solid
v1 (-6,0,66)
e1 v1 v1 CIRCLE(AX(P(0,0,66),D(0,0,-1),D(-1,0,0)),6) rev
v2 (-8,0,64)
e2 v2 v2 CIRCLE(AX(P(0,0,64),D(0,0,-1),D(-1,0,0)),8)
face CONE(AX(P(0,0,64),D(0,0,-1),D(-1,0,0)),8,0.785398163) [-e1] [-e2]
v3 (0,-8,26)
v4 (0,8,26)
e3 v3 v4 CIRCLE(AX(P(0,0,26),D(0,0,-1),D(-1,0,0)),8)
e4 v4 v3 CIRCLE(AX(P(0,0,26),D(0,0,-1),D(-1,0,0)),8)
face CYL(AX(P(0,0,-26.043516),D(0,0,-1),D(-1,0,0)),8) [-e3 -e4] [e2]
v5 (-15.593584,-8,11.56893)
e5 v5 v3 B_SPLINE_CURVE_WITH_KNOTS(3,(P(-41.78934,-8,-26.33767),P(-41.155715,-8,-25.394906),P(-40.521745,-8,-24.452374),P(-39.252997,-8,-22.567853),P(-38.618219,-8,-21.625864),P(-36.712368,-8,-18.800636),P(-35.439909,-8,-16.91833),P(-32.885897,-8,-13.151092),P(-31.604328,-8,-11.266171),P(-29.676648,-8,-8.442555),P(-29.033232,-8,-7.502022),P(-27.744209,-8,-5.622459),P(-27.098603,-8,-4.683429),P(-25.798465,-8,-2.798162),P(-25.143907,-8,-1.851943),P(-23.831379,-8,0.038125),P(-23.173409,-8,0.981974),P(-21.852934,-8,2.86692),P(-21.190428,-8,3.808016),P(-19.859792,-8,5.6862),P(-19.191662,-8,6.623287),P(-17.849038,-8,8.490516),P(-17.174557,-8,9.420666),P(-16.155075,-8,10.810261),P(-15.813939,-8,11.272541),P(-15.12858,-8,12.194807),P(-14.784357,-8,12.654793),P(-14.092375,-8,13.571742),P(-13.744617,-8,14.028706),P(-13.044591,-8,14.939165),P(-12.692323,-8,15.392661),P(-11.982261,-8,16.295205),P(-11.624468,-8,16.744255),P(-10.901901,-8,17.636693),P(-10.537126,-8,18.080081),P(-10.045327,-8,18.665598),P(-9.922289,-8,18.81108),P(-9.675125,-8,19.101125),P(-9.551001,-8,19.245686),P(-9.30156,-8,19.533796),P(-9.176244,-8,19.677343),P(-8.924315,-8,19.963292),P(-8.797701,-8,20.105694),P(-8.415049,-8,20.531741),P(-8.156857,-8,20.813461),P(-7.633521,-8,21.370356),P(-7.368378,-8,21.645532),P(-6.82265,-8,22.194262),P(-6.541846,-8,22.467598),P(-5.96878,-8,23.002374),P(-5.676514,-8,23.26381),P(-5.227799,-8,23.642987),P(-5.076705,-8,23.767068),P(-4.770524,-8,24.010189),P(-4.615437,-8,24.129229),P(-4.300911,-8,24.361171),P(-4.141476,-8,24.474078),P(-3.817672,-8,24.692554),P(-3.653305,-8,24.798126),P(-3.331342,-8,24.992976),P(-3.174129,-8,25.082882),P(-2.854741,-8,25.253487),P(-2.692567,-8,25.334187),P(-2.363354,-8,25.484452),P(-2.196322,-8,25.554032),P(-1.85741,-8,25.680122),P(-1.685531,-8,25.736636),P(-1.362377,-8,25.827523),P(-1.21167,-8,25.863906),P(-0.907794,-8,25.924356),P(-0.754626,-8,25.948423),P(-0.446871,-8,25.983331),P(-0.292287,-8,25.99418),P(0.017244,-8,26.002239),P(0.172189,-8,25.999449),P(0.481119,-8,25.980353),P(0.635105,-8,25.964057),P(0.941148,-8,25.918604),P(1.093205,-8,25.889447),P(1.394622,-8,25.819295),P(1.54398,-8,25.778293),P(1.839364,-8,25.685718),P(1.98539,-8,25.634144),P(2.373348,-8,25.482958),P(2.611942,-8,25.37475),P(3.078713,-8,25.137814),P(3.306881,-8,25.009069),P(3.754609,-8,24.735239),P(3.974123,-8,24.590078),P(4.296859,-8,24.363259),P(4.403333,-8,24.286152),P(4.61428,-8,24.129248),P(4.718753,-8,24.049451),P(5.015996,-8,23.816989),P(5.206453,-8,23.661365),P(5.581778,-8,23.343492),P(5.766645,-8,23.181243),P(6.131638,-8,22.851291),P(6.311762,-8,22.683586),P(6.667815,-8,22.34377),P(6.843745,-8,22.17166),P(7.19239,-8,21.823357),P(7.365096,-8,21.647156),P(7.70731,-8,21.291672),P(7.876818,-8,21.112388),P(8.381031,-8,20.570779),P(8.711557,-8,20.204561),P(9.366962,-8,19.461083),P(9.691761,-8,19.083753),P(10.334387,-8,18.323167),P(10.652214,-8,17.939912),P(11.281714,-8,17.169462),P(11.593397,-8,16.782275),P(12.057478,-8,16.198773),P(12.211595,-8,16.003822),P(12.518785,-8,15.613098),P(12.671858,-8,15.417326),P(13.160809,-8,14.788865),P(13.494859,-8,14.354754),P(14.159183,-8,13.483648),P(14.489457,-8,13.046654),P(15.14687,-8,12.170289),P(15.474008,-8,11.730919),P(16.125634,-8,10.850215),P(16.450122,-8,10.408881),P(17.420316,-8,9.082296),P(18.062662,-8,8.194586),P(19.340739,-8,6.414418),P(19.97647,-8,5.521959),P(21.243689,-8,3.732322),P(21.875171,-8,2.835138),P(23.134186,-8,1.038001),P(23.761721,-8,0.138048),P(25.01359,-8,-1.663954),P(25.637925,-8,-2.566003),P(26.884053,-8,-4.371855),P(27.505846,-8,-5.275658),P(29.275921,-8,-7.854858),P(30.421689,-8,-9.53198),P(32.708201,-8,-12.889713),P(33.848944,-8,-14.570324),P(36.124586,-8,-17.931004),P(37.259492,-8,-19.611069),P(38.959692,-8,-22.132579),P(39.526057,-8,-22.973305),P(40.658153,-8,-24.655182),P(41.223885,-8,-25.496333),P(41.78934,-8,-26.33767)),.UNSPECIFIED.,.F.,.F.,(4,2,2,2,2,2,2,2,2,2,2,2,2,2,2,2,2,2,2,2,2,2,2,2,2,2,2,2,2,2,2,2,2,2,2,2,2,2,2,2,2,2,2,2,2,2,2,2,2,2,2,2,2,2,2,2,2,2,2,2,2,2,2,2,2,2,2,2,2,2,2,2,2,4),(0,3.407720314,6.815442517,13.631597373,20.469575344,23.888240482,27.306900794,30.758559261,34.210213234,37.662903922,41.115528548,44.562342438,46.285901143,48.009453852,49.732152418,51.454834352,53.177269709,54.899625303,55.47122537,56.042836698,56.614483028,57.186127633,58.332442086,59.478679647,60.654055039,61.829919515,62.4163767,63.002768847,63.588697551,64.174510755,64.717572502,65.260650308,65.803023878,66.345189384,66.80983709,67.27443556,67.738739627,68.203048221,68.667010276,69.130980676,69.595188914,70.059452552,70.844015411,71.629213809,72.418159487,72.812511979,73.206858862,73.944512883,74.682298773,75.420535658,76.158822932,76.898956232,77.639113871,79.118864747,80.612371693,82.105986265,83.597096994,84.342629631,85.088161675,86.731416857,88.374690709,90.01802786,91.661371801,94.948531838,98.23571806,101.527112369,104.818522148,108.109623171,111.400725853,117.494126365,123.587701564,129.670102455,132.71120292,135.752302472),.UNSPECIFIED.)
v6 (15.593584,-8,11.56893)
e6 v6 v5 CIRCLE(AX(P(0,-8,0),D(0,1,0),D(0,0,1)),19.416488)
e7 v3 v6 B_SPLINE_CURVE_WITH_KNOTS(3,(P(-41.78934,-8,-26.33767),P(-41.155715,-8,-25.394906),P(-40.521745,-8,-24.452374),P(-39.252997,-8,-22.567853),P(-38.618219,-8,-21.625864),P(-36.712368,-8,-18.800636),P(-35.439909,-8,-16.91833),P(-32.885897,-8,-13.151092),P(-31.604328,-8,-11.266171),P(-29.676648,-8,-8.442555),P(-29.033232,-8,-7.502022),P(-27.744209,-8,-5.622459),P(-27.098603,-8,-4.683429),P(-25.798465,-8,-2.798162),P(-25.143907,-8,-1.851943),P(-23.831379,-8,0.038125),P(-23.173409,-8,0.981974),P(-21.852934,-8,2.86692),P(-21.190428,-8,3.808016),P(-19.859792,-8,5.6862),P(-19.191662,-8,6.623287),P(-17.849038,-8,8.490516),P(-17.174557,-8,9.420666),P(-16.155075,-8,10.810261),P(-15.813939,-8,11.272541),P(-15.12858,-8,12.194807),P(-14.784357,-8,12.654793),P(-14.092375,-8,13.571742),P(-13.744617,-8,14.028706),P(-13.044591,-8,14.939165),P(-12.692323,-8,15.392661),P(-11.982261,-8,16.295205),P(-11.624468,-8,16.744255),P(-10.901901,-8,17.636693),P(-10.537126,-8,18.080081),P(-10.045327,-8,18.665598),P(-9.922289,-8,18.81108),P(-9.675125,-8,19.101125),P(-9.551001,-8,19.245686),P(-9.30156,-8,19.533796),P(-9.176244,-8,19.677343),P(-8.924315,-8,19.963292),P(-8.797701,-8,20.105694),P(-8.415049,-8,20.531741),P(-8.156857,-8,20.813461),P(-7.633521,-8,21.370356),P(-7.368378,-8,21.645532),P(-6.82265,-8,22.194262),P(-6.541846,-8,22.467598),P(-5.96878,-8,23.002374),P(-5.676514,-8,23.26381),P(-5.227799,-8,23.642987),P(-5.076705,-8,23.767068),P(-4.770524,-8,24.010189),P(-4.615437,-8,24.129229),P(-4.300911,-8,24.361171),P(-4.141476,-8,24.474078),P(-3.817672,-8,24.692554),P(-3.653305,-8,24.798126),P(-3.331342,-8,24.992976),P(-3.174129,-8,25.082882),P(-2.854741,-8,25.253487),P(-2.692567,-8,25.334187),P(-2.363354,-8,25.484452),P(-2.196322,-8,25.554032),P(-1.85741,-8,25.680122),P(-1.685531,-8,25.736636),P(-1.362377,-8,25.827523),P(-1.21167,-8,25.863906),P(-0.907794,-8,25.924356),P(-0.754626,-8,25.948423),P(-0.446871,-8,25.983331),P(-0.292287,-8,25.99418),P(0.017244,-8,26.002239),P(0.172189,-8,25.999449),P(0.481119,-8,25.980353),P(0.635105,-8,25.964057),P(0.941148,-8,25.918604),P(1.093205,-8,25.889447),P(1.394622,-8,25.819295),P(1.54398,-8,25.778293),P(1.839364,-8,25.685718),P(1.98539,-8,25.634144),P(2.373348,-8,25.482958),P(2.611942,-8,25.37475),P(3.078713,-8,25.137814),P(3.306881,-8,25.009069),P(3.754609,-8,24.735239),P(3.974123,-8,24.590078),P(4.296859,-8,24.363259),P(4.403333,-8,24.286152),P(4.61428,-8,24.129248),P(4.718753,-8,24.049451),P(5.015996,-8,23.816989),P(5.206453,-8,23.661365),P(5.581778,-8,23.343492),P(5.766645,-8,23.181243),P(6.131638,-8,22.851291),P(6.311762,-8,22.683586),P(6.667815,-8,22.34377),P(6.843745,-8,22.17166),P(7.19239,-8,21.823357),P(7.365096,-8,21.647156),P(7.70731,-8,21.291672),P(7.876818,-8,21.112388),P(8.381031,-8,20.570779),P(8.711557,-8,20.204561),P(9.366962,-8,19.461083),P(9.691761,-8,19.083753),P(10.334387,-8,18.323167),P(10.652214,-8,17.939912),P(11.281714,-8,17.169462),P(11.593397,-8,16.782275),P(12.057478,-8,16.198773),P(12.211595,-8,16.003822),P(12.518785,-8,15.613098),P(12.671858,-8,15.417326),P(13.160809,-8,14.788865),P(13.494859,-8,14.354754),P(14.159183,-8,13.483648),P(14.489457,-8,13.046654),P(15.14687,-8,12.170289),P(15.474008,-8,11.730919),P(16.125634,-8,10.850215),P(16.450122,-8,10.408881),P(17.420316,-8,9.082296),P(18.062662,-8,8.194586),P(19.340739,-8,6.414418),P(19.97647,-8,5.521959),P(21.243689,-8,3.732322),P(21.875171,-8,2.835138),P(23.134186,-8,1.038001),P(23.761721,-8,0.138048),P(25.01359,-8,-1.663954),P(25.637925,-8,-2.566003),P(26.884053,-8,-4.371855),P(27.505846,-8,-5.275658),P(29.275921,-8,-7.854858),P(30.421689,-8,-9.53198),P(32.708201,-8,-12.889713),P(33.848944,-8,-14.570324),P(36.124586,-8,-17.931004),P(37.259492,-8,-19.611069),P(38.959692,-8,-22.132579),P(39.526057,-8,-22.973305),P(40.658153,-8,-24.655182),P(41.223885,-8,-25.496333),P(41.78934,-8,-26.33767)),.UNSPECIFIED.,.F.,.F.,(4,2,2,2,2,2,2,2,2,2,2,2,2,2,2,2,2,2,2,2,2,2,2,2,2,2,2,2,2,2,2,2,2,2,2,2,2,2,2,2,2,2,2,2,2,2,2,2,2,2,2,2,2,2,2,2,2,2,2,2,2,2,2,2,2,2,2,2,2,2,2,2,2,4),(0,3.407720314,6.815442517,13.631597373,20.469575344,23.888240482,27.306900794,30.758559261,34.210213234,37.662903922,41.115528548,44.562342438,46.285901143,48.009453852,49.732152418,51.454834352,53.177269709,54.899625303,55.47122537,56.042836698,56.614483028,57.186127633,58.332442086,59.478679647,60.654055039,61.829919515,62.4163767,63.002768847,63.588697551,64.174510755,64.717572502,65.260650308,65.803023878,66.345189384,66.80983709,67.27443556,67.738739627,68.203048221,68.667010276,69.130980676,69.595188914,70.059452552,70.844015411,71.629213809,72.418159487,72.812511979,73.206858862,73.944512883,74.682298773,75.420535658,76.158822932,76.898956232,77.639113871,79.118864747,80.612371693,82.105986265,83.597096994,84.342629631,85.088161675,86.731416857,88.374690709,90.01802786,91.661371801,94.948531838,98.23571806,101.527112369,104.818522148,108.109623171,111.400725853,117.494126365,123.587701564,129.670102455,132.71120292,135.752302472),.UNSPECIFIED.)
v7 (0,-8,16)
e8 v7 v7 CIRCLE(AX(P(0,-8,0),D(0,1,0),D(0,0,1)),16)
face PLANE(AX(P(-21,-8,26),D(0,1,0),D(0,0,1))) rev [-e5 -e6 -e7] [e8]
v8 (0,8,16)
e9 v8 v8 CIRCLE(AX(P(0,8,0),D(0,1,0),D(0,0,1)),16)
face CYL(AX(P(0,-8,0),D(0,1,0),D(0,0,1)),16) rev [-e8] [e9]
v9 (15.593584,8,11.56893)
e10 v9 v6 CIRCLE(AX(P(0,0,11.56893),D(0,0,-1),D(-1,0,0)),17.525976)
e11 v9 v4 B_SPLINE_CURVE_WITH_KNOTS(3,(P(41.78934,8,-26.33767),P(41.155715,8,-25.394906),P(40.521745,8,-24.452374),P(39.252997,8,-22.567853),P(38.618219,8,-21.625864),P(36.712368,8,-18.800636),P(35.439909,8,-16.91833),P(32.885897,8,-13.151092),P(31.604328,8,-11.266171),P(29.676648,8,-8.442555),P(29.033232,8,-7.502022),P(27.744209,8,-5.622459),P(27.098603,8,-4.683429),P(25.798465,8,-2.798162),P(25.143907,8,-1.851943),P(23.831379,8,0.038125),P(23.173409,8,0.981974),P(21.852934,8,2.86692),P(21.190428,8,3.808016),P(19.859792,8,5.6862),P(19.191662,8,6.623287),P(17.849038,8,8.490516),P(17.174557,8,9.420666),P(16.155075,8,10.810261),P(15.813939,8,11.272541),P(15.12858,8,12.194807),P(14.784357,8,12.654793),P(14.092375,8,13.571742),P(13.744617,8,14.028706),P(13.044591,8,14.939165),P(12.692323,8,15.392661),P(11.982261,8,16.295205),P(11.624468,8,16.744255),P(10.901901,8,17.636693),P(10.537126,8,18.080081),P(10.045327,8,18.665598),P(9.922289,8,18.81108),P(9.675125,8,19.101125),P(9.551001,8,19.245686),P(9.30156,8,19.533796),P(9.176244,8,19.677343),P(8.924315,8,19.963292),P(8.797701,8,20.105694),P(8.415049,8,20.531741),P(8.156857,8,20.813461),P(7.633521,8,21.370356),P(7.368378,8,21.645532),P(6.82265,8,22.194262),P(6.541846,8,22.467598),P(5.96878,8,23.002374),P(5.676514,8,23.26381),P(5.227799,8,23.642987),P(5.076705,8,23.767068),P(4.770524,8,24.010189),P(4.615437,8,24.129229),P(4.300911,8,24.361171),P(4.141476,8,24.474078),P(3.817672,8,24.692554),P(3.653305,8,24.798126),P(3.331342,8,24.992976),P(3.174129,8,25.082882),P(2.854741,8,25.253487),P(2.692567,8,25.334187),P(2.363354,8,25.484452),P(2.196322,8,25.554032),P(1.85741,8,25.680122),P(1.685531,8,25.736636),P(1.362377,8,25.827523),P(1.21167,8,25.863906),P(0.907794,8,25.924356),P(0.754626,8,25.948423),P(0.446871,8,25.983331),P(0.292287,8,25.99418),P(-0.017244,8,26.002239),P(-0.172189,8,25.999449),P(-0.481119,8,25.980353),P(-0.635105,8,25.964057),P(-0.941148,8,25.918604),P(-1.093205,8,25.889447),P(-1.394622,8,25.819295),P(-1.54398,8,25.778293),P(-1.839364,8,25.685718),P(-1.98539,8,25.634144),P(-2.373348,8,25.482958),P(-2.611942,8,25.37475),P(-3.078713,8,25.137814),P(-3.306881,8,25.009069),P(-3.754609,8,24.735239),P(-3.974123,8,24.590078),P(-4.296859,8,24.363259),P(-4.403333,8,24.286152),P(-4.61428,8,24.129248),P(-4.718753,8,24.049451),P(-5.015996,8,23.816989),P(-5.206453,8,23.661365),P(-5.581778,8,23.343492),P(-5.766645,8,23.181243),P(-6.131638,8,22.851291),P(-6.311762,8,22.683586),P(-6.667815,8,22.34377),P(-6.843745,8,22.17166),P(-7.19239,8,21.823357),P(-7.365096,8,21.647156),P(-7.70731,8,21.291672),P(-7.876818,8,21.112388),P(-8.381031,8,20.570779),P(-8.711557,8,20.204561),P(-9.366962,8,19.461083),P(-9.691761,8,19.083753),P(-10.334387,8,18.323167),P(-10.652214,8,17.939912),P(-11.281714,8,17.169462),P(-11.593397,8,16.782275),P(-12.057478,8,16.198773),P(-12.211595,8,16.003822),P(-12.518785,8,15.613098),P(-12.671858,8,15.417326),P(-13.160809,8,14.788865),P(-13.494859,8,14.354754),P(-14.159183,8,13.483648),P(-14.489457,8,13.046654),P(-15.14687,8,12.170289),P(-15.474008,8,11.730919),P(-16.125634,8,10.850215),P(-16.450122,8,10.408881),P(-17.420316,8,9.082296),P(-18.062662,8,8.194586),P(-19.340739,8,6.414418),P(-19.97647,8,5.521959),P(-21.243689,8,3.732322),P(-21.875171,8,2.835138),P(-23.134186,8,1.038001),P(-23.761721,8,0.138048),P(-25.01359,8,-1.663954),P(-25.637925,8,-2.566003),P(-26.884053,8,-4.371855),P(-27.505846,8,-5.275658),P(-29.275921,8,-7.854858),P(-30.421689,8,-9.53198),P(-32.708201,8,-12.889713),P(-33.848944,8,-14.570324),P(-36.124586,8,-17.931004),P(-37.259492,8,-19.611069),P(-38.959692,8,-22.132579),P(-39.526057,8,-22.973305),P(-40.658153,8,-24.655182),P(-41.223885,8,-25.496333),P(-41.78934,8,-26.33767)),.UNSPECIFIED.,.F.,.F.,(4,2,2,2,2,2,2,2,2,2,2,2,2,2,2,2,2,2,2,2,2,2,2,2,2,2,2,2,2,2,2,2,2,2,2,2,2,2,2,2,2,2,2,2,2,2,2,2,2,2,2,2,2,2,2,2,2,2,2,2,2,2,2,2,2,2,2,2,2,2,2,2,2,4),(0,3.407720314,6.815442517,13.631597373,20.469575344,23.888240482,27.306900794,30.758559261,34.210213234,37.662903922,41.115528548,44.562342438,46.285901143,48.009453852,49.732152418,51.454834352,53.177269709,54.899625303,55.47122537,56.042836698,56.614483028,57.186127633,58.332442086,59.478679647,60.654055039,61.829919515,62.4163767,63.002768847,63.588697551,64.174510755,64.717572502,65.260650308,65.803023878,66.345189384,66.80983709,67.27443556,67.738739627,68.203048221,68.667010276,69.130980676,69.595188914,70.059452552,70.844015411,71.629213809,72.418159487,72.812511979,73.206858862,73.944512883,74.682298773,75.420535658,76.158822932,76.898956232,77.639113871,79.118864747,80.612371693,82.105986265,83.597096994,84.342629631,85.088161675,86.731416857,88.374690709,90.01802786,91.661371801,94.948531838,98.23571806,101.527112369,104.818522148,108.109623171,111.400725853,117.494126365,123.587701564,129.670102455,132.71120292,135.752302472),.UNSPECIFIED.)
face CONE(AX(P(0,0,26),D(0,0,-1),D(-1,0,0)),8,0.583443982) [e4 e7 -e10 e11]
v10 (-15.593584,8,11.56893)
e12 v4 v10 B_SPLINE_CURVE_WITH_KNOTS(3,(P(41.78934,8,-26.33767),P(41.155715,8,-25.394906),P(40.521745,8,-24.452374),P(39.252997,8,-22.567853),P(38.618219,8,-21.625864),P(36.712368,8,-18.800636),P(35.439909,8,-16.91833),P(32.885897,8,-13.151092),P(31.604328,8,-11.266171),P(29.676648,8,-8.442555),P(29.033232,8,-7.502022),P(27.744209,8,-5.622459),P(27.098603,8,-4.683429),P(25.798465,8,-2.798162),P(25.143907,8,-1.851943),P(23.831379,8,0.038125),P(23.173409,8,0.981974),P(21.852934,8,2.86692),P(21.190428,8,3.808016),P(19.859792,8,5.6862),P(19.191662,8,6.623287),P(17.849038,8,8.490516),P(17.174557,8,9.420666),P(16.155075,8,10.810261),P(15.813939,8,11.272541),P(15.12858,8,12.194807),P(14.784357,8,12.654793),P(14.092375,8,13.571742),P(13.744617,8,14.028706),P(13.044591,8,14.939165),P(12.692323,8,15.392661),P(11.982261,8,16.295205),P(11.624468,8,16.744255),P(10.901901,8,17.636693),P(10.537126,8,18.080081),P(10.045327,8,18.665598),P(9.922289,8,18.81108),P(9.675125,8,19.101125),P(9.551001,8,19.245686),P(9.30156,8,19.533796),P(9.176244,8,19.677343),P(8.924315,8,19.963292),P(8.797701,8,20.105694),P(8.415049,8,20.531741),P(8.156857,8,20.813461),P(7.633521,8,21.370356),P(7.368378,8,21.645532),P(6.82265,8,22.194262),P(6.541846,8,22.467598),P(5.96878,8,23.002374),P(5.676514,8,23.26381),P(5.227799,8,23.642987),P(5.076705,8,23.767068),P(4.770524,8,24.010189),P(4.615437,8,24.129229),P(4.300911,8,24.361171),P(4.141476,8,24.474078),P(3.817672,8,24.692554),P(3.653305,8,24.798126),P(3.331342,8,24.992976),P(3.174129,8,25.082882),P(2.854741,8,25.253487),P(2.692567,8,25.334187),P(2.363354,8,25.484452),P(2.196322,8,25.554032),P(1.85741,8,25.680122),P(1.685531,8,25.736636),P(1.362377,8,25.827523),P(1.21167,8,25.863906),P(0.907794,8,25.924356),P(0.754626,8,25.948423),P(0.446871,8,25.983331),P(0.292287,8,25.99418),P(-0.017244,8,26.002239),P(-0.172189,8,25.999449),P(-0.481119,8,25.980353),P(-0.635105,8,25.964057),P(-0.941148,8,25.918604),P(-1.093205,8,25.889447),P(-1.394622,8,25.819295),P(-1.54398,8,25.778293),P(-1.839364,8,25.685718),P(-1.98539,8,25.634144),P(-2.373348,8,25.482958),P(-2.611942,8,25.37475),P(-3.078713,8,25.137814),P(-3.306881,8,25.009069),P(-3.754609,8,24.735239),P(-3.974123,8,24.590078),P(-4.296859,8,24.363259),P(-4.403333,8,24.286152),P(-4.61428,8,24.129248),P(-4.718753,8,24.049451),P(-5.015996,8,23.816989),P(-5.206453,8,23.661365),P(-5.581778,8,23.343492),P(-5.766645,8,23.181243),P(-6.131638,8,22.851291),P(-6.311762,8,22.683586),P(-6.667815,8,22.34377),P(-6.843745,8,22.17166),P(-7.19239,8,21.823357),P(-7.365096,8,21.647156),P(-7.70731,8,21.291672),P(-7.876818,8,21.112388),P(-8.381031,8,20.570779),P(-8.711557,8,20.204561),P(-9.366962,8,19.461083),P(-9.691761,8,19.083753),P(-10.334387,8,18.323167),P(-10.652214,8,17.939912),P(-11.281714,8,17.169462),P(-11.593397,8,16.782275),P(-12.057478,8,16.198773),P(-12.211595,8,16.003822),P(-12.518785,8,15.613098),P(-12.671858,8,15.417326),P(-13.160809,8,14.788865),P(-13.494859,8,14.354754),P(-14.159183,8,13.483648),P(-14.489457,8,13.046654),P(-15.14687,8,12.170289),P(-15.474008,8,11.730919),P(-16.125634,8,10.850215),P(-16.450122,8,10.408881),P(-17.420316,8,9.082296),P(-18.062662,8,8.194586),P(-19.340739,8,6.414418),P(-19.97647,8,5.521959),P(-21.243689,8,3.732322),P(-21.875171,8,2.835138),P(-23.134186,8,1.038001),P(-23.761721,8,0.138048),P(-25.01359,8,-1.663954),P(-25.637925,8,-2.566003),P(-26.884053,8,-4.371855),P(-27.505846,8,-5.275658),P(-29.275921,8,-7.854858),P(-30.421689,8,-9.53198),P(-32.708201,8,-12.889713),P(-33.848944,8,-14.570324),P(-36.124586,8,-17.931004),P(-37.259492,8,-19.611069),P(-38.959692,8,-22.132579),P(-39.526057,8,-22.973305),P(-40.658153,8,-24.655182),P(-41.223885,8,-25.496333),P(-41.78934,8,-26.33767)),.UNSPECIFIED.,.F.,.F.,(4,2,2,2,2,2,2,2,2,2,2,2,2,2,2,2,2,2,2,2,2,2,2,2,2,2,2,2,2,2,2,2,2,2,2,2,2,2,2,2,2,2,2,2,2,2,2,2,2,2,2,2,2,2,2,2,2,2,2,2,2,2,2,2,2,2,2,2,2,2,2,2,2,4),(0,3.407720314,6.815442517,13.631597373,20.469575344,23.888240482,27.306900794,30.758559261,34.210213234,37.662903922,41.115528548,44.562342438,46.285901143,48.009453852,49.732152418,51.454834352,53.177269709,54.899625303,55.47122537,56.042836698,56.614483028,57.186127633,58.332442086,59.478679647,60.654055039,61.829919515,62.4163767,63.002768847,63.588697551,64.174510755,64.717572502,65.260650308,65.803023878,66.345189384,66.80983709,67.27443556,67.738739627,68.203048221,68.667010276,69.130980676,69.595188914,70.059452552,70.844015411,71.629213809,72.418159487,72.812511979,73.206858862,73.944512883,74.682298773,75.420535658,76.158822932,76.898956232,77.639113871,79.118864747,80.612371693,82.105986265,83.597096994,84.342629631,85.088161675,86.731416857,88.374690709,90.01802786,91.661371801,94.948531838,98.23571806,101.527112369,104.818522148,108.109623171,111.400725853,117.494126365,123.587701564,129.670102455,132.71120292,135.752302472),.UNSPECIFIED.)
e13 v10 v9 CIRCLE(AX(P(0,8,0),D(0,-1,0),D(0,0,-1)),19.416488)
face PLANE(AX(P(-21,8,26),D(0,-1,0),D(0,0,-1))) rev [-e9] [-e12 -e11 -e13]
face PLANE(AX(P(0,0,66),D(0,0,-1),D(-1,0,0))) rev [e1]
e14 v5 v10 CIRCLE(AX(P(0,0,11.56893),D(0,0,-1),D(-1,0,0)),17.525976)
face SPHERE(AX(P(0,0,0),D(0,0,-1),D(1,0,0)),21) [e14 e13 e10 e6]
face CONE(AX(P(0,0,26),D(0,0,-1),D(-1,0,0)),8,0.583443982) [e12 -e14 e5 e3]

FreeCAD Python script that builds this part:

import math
import FreeCAD as App
import Part
import Sketcher
from FreeCAD import Vector
Q = App.Units.Quantity


def edges_at(feature, points):
    """Names of the edges that pass closest to the given points."""
    edges = feature.Shape.Edges
    near = lambda p: min(range(len(edges)), key=lambda i: edges[i].distToShape(Part.Vertex(*p))[0])
    return sorted({f"Edge{near(p) + 1}" for p in points})

doc = App.newDocument("Part")
body = doc.addObject("PartDesign::Body", "Body")

# Sketch on XZ plane
sketch1 = body.newObject("Sketcher::SketchObject", "Sketch")
sketch1.AttachmentSupport = (doc.getObject("XZ_Plane"), [""])
sketch1.MapMode = "FlatFace"
sketch1.addGeometry([
    Part.LineSegment(Vector(0, -21, 0), Vector(0, 66, 0)),  # 0
    Part.LineSegment(Vector(0, 66, 0), Vector(8, 66, 0)),  # 1
    Part.LineSegment(Vector(8, 66, 0), Vector(8, 26, 0)),  # 2
    Part.LineSegment(Vector(8, 26, 0), Vector(18, 12, 0)),  # 3
    Part.ArcOfCircle(Part.Circle(Vector(0, 0, 0), Vector(0, 0, 1), 21), math.radians(-90), math.radians(33)),  # 4
], False)
sketch1.addConstraint([
    Sketcher.Constraint("Coincident", 0, 2, 1, 1),
    Sketcher.Constraint("Coincident", 1, 2, 2, 1),
    Sketcher.Constraint("Coincident", 2, 2, 3, 1),
    Sketcher.Constraint("Tangent", 3, 2, 4, 2),
    Sketcher.Constraint("Coincident", 4, 1, 0, 1),
    Sketcher.Constraint("Vertical", 0),
    Sketcher.Constraint("Horizontal", 1),
    Sketcher.Constraint("Vertical", 2),
    Sketcher.Constraint("Coincident", 4, 3, -1, 1),
    Sketcher.Constraint("PointOnObject", 0, 2, -2),
    Sketcher.Constraint("Radius", 4, Q("21 mm")),
    Sketcher.Constraint("DistanceX", 1, 1, 1, 2, Q("8 mm")),
    Sketcher.Constraint("DistanceY", 0, 1, 0, 2, Q("87 mm")),
    Sketcher.Constraint("DistanceY", 2, 2, 2, 1, Q("40 mm")),
])
revolution = body.newObject("PartDesign::Revolution", "Revolution")
revolution.Profile = sketch1
revolution.ReferenceAxis = (sketch1, ["V_Axis"])
revolution.Angle = 360

# Sketch on YZ plane
sketch2 = body.newObject("Sketcher::SketchObject", "Sketch001")
sketch2.AttachmentSupport = (doc.getObject("YZ_Plane"), [""])
sketch2.MapMode = "FlatFace"
sketch2.addGeometry([
    Part.LineSegment(Vector(8, 26, 0), Vector(8, -19, 0)),  # 0
    Part.ArcOfCircle(Part.Circle(Vector(0, 0, 0), Vector(0, 0, 1), 21), math.radians(-68), math.radians(33)),  # 1
    Part.LineSegment(Vector(18, 12, 0), Vector(8, 26, 0)),  # 2
    Part.LineSegment(Vector(-8, -19, 0), Vector(-8, 26, 0)),  # 3
    Part.LineSegment(Vector(-8, 26, 0), Vector(-18, 12, 0)),  # 4
    Part.ArcOfCircle(Part.Circle(Vector(0, 0, 0), Vector(0, 0, 1), 21), math.radians(147), math.radians(248)),  # 5
], False)
sketch2.addConstraint([
    Sketcher.Constraint("Coincident", 0, 2, 1, 1),
    Sketcher.Constraint("Tangent", 1, 2, 2, 1),
    Sketcher.Constraint("Coincident", 2, 2, 0, 1),
    Sketcher.Constraint("Coincident", 3, 2, 4, 1),
    Sketcher.Constraint("Tangent", 4, 2, 5, 1),
    Sketcher.Constraint("Coincident", 5, 2, 3, 1),
    Sketcher.Constraint("Vertical", 0),
    Sketcher.Constraint("Vertical", 3),
    Sketcher.Constraint("Coincident", 1, 3, -1, 1),
    Sketcher.Constraint("Coincident", 5, 3, -1, 1),
    Sketcher.Constraint("Equal", 1, 5),
    Sketcher.Constraint("Symmetric", 2, 2, 3, 2, -2),
    Sketcher.Constraint("Radius", 1, Q("21 mm")),
    Sketcher.Constraint("DistanceX", -1, 1, 0, 2, Q("8 mm")),
    Sketcher.Constraint("DistanceY", -1, 1, 2, 2, Q("26 mm")),
])
pocket1 = body.newObject("PartDesign::Pocket", "Pocket")
pocket1.Profile = sketch2
pocket1.Type = "ThroughAll"
pocket1.Midplane = True

# Sketch on XZ plane
sketch3 = body.newObject("Sketcher::SketchObject", "Sketch002")
sketch3.AttachmentSupport = (doc.getObject("XZ_Plane"), [""])
sketch3.MapMode = "FlatFace"
sketch3.addGeometry(Part.Circle(Vector(0, 0, 0), Vector(0, 0, 1), 16), False)
sketch3.addConstraint([
    Sketcher.Constraint("Coincident", 0, 3, -1, 1),
    Sketcher.Constraint("Diameter", 0, Q("32 mm")),
])
pocket2 = body.newObject("PartDesign::Pocket", "Pocket001")
pocket2.Profile = sketch3
pocket2.Type = "ThroughAll"
pocket2.Midplane = True
doc.recompute()

chamfer = body.newObject("PartDesign::Chamfer", "Chamfer")
chamfer.Base = (pocket2, edges_at(pocket2, [(-8, 0, 66)]))
chamfer.Size = 2

doc.recompute()
